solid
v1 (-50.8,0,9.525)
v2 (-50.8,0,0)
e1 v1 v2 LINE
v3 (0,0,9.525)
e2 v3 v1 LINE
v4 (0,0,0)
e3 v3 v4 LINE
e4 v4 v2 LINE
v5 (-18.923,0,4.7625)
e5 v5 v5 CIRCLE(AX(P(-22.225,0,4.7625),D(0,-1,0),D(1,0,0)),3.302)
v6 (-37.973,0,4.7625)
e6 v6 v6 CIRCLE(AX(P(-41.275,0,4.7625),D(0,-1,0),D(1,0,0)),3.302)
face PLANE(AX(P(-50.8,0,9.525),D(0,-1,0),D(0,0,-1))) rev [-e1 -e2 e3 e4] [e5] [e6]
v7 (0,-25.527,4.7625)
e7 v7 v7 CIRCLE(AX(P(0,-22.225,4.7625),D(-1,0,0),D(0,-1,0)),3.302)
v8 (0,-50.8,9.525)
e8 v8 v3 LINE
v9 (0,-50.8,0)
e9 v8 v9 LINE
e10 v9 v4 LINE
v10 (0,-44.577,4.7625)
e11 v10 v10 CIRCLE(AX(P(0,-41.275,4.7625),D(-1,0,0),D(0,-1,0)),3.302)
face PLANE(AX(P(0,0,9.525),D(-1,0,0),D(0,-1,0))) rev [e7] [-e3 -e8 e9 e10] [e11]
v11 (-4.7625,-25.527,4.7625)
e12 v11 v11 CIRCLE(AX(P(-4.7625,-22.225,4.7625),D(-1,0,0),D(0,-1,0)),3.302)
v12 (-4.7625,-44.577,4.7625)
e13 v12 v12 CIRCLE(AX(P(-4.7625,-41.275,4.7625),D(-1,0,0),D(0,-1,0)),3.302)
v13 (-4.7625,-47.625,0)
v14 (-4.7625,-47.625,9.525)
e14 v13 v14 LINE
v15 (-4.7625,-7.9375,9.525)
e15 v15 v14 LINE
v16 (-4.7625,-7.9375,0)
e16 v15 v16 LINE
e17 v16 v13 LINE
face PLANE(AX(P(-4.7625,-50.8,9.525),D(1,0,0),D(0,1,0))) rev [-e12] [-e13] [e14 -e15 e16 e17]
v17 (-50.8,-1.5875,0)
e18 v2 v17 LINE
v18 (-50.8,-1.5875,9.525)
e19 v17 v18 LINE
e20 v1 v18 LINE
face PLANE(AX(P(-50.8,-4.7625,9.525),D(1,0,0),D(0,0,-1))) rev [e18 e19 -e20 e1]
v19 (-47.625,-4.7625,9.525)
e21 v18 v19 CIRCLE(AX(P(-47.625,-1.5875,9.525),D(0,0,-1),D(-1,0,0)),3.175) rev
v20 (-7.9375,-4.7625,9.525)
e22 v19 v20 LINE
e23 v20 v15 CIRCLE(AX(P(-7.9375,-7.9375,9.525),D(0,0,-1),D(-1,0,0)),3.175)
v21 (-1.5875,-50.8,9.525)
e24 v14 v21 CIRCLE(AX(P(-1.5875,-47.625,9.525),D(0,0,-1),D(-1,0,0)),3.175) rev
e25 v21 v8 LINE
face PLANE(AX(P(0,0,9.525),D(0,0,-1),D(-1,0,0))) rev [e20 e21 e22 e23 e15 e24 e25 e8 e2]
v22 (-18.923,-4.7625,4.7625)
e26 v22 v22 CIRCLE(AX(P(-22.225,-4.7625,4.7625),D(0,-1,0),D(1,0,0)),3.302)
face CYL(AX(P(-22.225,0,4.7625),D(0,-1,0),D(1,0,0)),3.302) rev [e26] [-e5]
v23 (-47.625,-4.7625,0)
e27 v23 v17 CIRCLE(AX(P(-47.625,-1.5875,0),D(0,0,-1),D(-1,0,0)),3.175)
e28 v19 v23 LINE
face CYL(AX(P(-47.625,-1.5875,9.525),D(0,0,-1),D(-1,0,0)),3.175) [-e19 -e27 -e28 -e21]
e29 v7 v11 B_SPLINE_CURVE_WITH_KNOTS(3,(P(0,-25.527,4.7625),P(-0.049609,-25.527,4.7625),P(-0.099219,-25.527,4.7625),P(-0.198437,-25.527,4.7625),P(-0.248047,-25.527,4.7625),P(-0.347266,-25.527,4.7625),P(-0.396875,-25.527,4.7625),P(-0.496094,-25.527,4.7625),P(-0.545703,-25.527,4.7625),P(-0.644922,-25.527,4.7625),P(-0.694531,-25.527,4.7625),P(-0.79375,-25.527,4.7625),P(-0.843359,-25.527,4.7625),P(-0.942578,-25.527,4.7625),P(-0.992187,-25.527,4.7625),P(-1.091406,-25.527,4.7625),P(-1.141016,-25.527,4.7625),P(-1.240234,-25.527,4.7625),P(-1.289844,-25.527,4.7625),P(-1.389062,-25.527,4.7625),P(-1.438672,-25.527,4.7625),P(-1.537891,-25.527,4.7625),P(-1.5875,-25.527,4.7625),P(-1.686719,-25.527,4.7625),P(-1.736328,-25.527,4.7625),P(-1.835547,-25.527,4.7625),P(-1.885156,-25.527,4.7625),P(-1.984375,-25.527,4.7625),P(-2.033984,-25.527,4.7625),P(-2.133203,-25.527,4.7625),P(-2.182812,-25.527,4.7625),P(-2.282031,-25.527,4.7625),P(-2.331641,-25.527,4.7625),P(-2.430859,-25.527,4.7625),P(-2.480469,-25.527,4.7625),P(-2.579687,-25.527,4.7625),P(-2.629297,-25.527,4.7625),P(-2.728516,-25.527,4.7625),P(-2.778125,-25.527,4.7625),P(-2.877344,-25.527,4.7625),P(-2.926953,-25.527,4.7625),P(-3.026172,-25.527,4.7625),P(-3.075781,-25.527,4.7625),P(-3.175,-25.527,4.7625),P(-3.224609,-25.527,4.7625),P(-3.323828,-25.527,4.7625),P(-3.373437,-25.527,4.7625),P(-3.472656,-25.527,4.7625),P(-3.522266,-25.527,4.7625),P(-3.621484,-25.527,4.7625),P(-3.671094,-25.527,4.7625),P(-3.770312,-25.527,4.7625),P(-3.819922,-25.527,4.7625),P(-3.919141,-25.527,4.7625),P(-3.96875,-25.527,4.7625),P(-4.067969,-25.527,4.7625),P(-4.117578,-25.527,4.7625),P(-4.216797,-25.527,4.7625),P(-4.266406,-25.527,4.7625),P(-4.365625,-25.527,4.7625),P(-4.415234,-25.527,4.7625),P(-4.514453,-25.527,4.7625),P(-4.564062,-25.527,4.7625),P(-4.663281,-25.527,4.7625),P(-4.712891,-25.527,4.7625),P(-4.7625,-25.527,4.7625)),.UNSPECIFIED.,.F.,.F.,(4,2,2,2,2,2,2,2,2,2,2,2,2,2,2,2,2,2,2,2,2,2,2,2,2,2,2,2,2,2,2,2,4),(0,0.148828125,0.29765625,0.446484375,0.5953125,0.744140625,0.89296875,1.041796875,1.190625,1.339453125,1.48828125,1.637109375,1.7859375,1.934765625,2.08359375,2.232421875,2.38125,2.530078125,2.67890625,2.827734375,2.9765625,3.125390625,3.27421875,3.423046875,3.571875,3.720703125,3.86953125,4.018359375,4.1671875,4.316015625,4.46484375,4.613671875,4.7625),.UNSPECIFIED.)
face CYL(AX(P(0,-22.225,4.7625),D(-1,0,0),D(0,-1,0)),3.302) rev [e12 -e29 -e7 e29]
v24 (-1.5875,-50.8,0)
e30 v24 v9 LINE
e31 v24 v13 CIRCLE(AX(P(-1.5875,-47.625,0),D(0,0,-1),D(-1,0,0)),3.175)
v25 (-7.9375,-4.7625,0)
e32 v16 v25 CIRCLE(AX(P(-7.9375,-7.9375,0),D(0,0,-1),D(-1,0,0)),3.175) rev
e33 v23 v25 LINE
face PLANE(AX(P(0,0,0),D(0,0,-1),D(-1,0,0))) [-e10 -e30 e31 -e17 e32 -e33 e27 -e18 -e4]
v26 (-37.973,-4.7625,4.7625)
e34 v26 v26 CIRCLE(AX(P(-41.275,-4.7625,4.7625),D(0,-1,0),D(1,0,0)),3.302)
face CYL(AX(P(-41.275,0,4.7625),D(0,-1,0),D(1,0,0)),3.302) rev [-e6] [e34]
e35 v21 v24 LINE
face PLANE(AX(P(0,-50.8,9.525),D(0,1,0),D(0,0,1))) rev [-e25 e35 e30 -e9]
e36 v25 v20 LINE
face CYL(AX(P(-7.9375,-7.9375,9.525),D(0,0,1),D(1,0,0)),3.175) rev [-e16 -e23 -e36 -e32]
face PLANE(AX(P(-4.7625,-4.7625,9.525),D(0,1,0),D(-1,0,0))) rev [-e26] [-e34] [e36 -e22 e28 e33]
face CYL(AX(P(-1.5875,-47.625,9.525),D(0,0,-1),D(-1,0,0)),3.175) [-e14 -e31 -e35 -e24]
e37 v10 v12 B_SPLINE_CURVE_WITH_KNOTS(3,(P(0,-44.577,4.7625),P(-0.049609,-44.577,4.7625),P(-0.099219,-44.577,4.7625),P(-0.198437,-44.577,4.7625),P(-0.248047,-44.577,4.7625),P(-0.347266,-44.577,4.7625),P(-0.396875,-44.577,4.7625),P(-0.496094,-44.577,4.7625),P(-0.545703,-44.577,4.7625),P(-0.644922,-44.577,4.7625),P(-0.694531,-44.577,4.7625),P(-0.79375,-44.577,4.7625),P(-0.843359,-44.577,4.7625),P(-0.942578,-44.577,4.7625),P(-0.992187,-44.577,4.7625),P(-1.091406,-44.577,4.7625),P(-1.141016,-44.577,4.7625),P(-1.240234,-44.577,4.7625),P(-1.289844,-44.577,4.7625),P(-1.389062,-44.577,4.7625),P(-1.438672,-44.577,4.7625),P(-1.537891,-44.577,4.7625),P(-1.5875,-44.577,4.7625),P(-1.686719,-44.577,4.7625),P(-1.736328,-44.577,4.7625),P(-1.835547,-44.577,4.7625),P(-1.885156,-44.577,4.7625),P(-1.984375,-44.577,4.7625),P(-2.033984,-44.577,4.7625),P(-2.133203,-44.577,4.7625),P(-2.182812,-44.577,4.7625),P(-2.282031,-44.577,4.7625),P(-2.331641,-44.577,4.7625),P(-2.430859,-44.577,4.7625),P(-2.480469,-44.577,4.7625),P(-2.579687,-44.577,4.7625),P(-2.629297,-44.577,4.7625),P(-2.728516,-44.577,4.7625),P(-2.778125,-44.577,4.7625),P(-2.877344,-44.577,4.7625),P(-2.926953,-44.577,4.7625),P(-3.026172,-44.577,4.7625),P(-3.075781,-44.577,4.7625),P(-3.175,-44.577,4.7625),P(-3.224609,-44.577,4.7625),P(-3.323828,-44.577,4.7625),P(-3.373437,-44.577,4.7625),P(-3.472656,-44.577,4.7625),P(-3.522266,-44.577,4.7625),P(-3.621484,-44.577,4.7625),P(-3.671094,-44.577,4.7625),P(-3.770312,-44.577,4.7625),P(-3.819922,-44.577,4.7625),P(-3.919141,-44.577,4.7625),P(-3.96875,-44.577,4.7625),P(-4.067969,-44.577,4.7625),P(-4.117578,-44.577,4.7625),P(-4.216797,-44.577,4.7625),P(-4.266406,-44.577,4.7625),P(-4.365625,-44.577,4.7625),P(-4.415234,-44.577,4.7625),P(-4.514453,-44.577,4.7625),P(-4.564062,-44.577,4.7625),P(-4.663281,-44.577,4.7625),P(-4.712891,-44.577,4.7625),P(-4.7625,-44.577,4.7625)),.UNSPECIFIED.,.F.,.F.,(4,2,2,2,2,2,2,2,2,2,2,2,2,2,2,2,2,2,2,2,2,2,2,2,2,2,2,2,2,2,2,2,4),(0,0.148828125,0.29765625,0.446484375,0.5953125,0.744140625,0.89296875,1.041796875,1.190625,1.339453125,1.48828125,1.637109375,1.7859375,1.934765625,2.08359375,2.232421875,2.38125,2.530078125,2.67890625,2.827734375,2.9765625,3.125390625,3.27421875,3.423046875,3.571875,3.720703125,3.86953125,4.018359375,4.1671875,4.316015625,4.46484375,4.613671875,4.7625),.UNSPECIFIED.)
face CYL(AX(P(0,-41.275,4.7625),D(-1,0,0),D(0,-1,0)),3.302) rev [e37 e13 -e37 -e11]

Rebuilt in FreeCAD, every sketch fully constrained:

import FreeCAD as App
import Part
import Sketcher

V = App.Vector
Q = App.Units.Quantity


def edges_at(feature, points):
    """Names of the edges that pass closest to the given points."""
    edges = feature.Shape.Edges
    near = lambda p: min(range(len(edges)), key=lambda i: edges[i].distToShape(Part.Vertex(*p))[0])
    return sorted({f"Edge{near(p) + 1}" for p in points})


def add_polygon(sketch, points):
    """Adds a closed chain of lines whose ends are joined by coincident constraints."""
    first, n = sketch.GeometryCount, len(points)
    for a, b in zip(points, points[1:] + points[:1]):
        sketch.addGeometry(Part.LineSegment(App.Vector(*a, 0), App.Vector(*b, 0)), False)
    for i in range(n):
        sketch.addConstraint(Sketcher.Constraint("Coincident", first + i, 2, first + (i + 1) % n, 1))

doc = App.newDocument("Part")
params = doc.addObject("Spreadsheet::Sheet", "Params")
for row, (alias, value) in enumerate([
    ("sketch1_width", "2 in"),
    ("sketch1_width2", "1.8125 in"),
    ("pad1_length", "0.375 in"),
    ("fillet_radius", "0.125 in"),
    ("sketch2_diameter", "0.26 in"),
    ("sketch3_diameter", "0.26 in"),
], start=1):
    params.set(f"A{row}", alias)
    params.set(f"B{row}", "=" + value)
    params.setAlias(f"B{row}", alias)

body = doc.addObject("PartDesign::Body", "Body")

# Sketch on XY plane
sketch1 = body.newObject("Sketcher::SketchObject", "Sketch")
sketch1.AttachmentSupport = (doc.getObject("XY_Plane"), [""])
sketch1.MapMode = "FlatFace"
add_polygon(sketch1, [(0, 0), (-50.8, 0), (-50.8, -4.8), (-4.8, -4.8), (-4.8, -50.8), (0, -50.8)])  # lines 0-5
sketch1.addConstraint(Sketcher.Constraint("Horizontal", 0))
sketch1.addConstraint(Sketcher.Constraint("Vertical", 1))
sketch1.addConstraint(Sketcher.Constraint("Horizontal", 2))
sketch1.addConstraint(Sketcher.Constraint("Vertical", 3))
sketch1.addConstraint(Sketcher.Constraint("Horizontal", 4))
sketch1.addConstraint(Sketcher.Constraint("Vertical", 5))
sketch1.addConstraint(Sketcher.Constraint("Coincident", 5, 2, -1, 1))
sketch1.addConstraint(Sketcher.Constraint("Equal", 4, 1))
sketch1.addConstraint(Sketcher.Constraint("Equal", 2, 3))
sketch1.addConstraint(Sketcher.Constraint("DistanceX", 0, 2, 0, 1, Q("2 in")))
sketch1.addConstraint(Sketcher.Constraint("DistanceX", 2, 1, 2, 2, Q("1.8125 in")))
sketch1.setExpression("Constraints[15]", "Params.sketch1_width")
sketch1.setExpression("Constraints[16]", "Params.sketch1_width2")
pad1 = body.newObject("PartDesign::Pad", "Pad")
pad1.Profile = sketch1
pad1.setExpression("Length", "Params.pad1_length")
doc.recompute()

fillet = body.newObject("PartDesign::Fillet", "Fillet")
fillet.Base = (pad1, edges_at(pad1, [(-4.763, -50.8, 4.763), (-4.763, -4.763, 4.763), (-50.8, -4.763, 4.763)]))
fillet.setExpression("Radius", "Params.fillet_radius")

# Sketch on YZ plane
sketch2 = body.newObject("Sketcher::SketchObject", "Sketch001")
sketch2.AttachmentSupport = (doc.getObject("YZ_Plane"), [""])
sketch2.MapMode = "FlatFace"
sketch2.AttachmentOffset = App.Placement(V(0, 0, -0.1875 * 25.4), App.Rotation())
sketch2.addGeometry(Part.Circle(V(-41.3, 4.8, 0), V(0, 0, 1), 3.3), False)
sketch2.addGeometry(Part.Circle(V(-22.2, 4.8, 0), V(0, 0, 1), 3.3), False)
sketch2.addConstraint(Sketcher.Constraint("Equal", 0, 1))
sketch2.addConstraint(Sketcher.Constraint("Horizontal", 0, 3, 1, 3))
sketch2.addConstraint(Sketcher.Constraint("Diameter", 0, Q("0.26 in")))
sketch2.addConstraint(Sketcher.Constraint("DistanceX", 0, 3, 1, 3, Q("0.75 in")))
sketch2.addConstraint(Sketcher.Constraint("DistanceX", 0, 3, -1, 1, Q("1.625 in")))
sketch2.addConstraint(Sketcher.Constraint("DistanceY", -1, 1, 0, 3, Q("0.1875 in")))
sketch2.setExpression("Constraints[2]", "Params.sketch2_diameter")
pocket1 = body.newObject("PartDesign::Pocket", "Pocket")
pocket1.Profile = sketch2
pocket1.Type = "ThroughAll"
pocket1.Reversed = True

# Sketch on XZ plane
sketch3 = body.newObject("Sketcher::SketchObject", "Sketch002")
sketch3.AttachmentSupport = (doc.getObject("XZ_Plane"), [""])
sketch3.MapMode = "FlatFace"
sketch3.AttachmentOffset = App.Placement(V(0, 0, 0.1875 * 25.4), App.Rotation())
sketch3.addGeometry(Part.Circle(V(-41.3, 4.8, 0), V(0, 0, 1), 3.3), False)
sketch3.addGeometry(Part.Circle(V(-22.2, 4.8, 0), V(0, 0, 1), 3.3), False)
sketch3.addConstraint(Sketcher.Constraint("Equal", 0, 1))
sketch3.addConstraint(Sketcher.Constraint("Horizontal", 0, 3, 1, 3))
sketch3.addConstraint(Sketcher.Constraint("Diameter", 0, Q("0.26 in")))
sketch3.addConstraint(Sketcher.Constraint("DistanceX", 0, 3, 1, 3, Q("0.75 in")))
sketch3.addConstraint(Sketcher.Constraint("DistanceX", 0, 3, -1, 1, Q("1.625 in")))
sketch3.addConstraint(Sketcher.Constraint("DistanceY", -1, 1, 0, 3, Q("0.1875 in")))
sketch3.setExpression("Constraints[2]", "Params.sketch3_diameter")
pocket2 = body.newObject("PartDesign::Pocket", "Pocket001")
pocket2.Profile = sketch3
pocket2.Type = "ThroughAll"

doc.recompute()
